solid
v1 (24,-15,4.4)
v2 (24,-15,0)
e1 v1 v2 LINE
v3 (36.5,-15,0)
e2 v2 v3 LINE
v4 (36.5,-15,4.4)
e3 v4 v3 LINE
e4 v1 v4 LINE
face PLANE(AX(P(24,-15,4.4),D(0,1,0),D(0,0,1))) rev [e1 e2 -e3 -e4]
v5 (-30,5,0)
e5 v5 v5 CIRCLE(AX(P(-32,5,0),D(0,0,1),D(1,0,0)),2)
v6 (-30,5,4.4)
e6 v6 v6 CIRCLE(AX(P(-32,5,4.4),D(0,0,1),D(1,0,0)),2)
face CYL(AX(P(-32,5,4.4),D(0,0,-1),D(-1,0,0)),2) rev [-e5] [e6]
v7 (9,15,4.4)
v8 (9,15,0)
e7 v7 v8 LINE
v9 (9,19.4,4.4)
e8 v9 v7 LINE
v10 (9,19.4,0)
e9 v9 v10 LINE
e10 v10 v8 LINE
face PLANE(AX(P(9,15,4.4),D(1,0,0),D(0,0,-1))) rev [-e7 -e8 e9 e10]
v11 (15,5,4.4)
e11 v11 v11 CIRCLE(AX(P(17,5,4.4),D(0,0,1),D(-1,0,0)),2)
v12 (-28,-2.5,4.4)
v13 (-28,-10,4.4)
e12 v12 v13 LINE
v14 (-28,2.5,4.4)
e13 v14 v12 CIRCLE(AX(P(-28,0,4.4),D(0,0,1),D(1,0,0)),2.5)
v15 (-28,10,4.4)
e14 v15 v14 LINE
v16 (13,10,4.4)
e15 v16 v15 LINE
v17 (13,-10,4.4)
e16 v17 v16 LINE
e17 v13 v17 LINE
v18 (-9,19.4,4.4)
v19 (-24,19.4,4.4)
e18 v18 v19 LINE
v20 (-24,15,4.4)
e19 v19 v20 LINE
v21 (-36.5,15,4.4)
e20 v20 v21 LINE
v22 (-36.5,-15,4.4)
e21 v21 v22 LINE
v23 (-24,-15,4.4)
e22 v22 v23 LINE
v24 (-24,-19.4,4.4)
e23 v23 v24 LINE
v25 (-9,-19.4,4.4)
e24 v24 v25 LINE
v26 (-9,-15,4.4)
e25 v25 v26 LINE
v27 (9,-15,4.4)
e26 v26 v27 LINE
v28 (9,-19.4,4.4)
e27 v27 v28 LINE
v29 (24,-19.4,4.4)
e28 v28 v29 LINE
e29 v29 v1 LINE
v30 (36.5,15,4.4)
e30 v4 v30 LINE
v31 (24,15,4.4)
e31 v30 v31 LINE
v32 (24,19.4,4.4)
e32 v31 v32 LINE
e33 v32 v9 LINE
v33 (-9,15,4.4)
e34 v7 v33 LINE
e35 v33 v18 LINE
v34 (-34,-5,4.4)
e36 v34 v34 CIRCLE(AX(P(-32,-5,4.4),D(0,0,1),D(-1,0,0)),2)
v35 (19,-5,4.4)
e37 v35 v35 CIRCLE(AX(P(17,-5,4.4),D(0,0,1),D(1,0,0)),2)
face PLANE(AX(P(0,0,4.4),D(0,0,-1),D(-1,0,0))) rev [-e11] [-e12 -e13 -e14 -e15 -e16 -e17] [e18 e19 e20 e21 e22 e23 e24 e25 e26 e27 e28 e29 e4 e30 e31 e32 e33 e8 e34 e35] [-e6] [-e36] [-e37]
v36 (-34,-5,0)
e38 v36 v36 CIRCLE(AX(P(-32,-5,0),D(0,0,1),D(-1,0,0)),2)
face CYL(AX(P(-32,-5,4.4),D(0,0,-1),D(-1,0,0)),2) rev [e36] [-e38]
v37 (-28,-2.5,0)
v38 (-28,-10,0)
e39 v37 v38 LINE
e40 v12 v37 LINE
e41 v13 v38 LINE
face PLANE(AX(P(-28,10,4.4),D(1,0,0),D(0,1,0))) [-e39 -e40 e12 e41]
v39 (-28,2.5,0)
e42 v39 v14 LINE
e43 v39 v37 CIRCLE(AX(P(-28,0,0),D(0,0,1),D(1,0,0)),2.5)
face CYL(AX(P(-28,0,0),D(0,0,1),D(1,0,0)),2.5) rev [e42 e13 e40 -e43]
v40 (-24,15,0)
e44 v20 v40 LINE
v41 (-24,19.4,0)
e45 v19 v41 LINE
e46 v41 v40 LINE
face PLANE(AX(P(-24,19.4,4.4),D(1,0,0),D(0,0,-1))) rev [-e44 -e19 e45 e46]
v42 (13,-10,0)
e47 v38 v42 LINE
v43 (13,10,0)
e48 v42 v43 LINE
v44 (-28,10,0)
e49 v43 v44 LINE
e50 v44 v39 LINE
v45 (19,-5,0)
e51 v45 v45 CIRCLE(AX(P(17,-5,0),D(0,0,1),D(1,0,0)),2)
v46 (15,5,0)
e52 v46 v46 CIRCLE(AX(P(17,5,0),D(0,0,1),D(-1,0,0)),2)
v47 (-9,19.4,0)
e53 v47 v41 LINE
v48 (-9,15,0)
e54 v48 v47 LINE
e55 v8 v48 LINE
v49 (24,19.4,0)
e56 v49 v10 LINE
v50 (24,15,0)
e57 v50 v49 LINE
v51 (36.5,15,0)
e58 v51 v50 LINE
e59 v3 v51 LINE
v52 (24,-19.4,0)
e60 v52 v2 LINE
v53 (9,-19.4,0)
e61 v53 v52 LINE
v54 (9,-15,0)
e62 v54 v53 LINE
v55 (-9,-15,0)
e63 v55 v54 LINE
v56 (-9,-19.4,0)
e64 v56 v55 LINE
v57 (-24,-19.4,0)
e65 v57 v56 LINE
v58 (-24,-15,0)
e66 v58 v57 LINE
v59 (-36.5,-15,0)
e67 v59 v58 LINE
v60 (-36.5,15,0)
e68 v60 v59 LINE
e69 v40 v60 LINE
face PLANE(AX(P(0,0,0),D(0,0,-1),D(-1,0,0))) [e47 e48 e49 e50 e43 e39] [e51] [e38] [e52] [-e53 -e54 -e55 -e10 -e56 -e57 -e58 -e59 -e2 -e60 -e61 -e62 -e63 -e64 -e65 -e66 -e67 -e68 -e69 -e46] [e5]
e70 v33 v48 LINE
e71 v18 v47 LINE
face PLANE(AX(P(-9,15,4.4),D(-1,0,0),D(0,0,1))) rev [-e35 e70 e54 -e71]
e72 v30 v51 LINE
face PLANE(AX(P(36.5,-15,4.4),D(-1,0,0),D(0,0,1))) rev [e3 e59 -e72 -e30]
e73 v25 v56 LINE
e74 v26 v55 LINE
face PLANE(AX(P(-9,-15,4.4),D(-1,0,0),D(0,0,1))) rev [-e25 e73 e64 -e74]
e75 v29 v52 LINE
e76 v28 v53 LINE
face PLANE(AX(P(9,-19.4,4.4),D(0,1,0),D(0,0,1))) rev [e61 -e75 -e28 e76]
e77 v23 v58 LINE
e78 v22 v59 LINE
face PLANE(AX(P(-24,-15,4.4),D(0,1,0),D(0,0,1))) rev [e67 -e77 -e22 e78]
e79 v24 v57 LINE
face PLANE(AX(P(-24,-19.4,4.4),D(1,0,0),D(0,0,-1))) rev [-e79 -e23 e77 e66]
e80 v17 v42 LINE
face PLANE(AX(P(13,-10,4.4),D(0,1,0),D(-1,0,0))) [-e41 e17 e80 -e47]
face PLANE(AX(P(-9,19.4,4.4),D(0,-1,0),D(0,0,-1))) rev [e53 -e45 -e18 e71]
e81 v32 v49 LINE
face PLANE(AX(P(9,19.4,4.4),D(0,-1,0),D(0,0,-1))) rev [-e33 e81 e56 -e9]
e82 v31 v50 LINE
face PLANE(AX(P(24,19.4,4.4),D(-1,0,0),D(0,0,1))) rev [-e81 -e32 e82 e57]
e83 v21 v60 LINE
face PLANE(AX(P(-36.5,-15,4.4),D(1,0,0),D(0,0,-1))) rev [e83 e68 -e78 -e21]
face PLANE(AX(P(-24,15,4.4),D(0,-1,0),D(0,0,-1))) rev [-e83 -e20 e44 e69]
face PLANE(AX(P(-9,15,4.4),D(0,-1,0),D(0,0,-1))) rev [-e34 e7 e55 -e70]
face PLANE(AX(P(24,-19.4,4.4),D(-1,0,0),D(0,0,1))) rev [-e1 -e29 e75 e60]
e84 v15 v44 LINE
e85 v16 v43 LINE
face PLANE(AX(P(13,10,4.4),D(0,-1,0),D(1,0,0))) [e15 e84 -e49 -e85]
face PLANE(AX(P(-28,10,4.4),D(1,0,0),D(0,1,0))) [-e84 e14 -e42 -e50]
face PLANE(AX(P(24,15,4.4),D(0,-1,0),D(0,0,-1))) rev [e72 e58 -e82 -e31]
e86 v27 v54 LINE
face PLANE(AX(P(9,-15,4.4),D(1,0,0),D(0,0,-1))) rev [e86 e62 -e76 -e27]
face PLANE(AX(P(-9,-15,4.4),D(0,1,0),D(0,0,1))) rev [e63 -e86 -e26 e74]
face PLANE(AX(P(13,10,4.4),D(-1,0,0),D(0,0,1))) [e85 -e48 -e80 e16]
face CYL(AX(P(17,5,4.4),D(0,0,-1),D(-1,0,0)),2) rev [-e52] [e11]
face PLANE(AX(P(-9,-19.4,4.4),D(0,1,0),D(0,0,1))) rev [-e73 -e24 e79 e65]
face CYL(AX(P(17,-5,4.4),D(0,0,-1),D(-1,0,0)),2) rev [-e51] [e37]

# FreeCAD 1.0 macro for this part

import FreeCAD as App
import Part
import Sketcher
from FreeCAD import Vector

doc = App.newDocument("Part")
body = doc.addObject("PartDesign::Body", "Body")

# Sketch on XY plane
sketch1 = body.newObject("Sketcher::SketchObject", "Sketch")
sketch1.AttachmentSupport = (doc.getObject("XY_Plane"), [""])
sketch1.MapMode = "FlatFace"
sketch1.addGeometry(Part.LineSegment(Vector(9, 19.4, 0), Vector(9, 15, 0)), False)
sketch1.addGeometry(Part.LineSegment(Vector(9, 15, 0), Vector(-9, 15, 0)), False)
sketch1.addGeometry(Part.LineSegment(Vector(-9, 15, 0), Vector(-9, 19.4, 0)), False)
sketch1.addGeometry(Part.LineSegment(Vector(-9, 19.4, 0), Vector(-24, 19.4, 0)), False)
sketch1.addGeometry(Part.LineSegment(Vector(-24, 19.4, 0), Vector(-24, 15, 0)), False)
sketch1.addGeometry(Part.LineSegment(Vector(-24, 15, 0), Vector(-36.5, 15, 0)), False)
sketch1.addGeometry(Part.LineSegment(Vector(-36.5, 15, 0), Vector(-36.5, -15, 0)), False)
sketch1.addGeometry(Part.LineSegment(Vector(-36.5, -15, 0), Vector(-24, -15, 0)), False)
sketch1.addGeometry(Part.LineSegment(Vector(-24, -15, 0), Vector(-24, -19.4, 0)), False)
sketch1.addGeometry(Part.LineSegment(Vector(-24, -19.4, 0), Vector(-9, -19.4, 0)), False)
sketch1.addGeometry(Part.LineSegment(Vector(-9, -19.4, 0), Vector(-9, -15, 0)), False)
sketch1.addGeometry(Part.LineSegment(Vector(-9, -15, 0), Vector(9, -15, 0)), False)
sketch1.addGeometry(Part.LineSegment(Vector(9, -15, 0), Vector(9, -19.4, 0)), False)
sketch1.addGeometry(Part.LineSegment(Vector(9, -19.4, 0), Vector(24, -19.4, 0)), False)
sketch1.addGeometry(Part.LineSegment(Vector(24, -19.4, 0), Vector(24, -15, 0)), False)
sketch1.addGeometry(Part.LineSegment(Vector(24, -15, 0), Vector(36.5, -15, 0)), False)
sketch1.addGeometry(Part.LineSegment(Vector(36.5, -15, 0), Vector(36.5, 15, 0)), False)
sketch1.addGeometry(Part.LineSegment(Vector(36.5, 15, 0), Vector(24, 15, 0)), False)
sketch1.addGeometry(Part.LineSegment(Vector(24, 15, 0), Vector(24, 19.4, 0)), False)
sketch1.addGeometry(Part.LineSegment(Vector(24, 19.4, 0), Vector(9, 19.4, 0)), False)
sketch1.addGeometry(Part.Circle(Vector(17, -5, 0), Vector(0, 0, 1), 2), False)
sketch1.addGeometry(Part.Circle(Vector(-32, -5, 0), Vector(0, 0, 1), 2), False)
sketch1.addGeometry(Part.Circle(Vector(17, 5, 0), Vector(0, 0, 1), 2), False)
sketch1.addGeometry(Part.LineSegment(Vector(-28, -10, 0), Vector(-28, 10, 0)), False)
sketch1.addGeometry(Part.LineSegment(Vector(-28, 10, 0), Vector(13, 10, 0)), False)
sketch1.addGeometry(Part.LineSegment(Vector(13, 10, 0), Vector(13, -10, 0)), False)
sketch1.addGeometry(Part.LineSegment(Vector(13, -10, 0), Vector(-28, -10, 0)), False)
sketch1.addGeometry(Part.Circle(Vector(-32, 5, 0), Vector(0, 0, 1), 2), False)
sketch1.addConstraint(Sketcher.Constraint("Coincident", 0, 2, 1, 1))
sketch1.addConstraint(Sketcher.Constraint("Coincident", 1, 2, 2, 1))
sketch1.addConstraint(Sketcher.Constraint("Coincident", 2, 2, 3, 1))
sketch1.addConstraint(Sketcher.Constraint("Coincident", 3, 2, 4, 1))
sketch1.addConstraint(Sketcher.Constraint("Coincident", 4, 2, 5, 1))
sketch1.addConstraint(Sketcher.Constraint("Coincident", 5, 2, 6, 1))
sketch1.addConstraint(Sketcher.Constraint("Coincident", 6, 2, 7, 1))
sketch1.addConstraint(Sketcher.Constraint("Coincident", 7, 2, 8, 1))
sketch1.addConstraint(Sketcher.Constraint("Coincident", 8, 2, 9, 1))
sketch1.addConstraint(Sketcher.Constraint("Coincident", 9, 2, 10, 1))
sketch1.addConstraint(Sketcher.Constraint("Coincident", 10, 2, 11, 1))
sketch1.addConstraint(Sketcher.Constraint("Coincident", 11, 2, 12, 1))
sketch1.addConstraint(Sketcher.Constraint("Coincident", 12, 2, 13, 1))
sketch1.addConstraint(Sketcher.Constraint("Coincident", 13, 2, 14, 1))
sketch1.addConstraint(Sketcher.Constraint("Coincident", 14, 2, 15, 1))
sketch1.addConstraint(Sketcher.Constraint("Coincident", 15, 2, 16, 1))
sketch1.addConstraint(Sketcher.Constraint("Coincident", 16, 2, 17, 1))
sketch1.addConstraint(Sketcher.Constraint("Coincident", 17, 2, 18, 1))
sketch1.addConstraint(Sketcher.Constraint("Coincident", 18, 2, 19, 1))
sketch1.addConstraint(Sketcher.Constraint("Coincident", 19, 2, 0, 1))
sketch1.addConstraint(Sketcher.Constraint("Coincident", 23, 2, 24, 1))
sketch1.addConstraint(Sketcher.Constraint("Coincident", 24, 2, 25, 1))
sketch1.addConstraint(Sketcher.Constraint("Coincident", 25, 2, 26, 1))
sketch1.addConstraint(Sketcher.Constraint("Coincident", 26, 2, 23, 1))
sketch1.addConstraint(Sketcher.Constraint("Vertical", 0))
sketch1.addConstraint(Sketcher.Constraint("Horizontal", 1))
sketch1.addConstraint(Sketcher.Constraint("Vertical", 2))
sketch1.addConstraint(Sketcher.Constraint("Horizontal", 3))
sketch1.addConstraint(Sketcher.Constraint("Vertical", 4))
sketch1.addConstraint(Sketcher.Constraint("Horizontal", 5))
sketch1.addConstraint(Sketcher.Constraint("Vertical", 6))
sketch1.addConstraint(Sketcher.Constraint("Horizontal", 7))
sketch1.addConstraint(Sketcher.Constraint("Vertical", 8))
sketch1.addConstraint(Sketcher.Constraint("Horizontal", 9))
sketch1.addConstraint(Sketcher.Constraint("Vertical", 10))
sketch1.addConstraint(Sketcher.Constraint("Horizontal", 11))
sketch1.addConstraint(Sketcher.Constraint("Vertical", 12))
sketch1.addConstraint(Sketcher.Constraint("Horizontal", 13))
sketch1.addConstraint(Sketcher.Constraint("Vertical", 14))
sketch1.addConstraint(Sketcher.Constraint("Horizontal", 15))
sketch1.addConstraint(Sketcher.Constraint("Vertical", 16))
sketch1.addConstraint(Sketcher.Constraint("Horizontal", 17))
sketch1.addConstraint(Sketcher.Constraint("Vertical", 18))
sketch1.addConstraint(Sketcher.Constraint("Horizontal", 19))
sketch1.addConstraint(Sketcher.Constraint("Vertical", 23))
sketch1.addConstraint(Sketcher.Constraint("Horizontal", 24))
sketch1.addConstraint(Sketcher.Constraint("Vertical", 25))
sketch1.addConstraint(Sketcher.Constraint("Horizontal", 26))
sketch1.addConstraint(Sketcher.Constraint("Equal", 20, 21))
sketch1.addConstraint(Sketcher.Constraint("Equal", 21, 22))
sketch1.addConstraint(Sketcher.Constraint("Equal", 22, 27))
sketch1.addConstraint(Sketcher.Constraint("Symmetric", 0, 2, 10, 2, -1, 1))
sketch1.addConstraint(Sketcher.Constraint("Symmetric", 2, 2, 12, 2, -1, 1))
sketch1.addConstraint(Sketcher.Constraint("Symmetric", 4, 2, 14, 2, -1, 1))
sketch1.addConstraint(Sketcher.Constraint("Symmetric", 6, 2, 16, 2, -1, 1))
sketch1.addConstraint(Sketcher.Constraint("Symmetric", 8, 2, 18, 2, -1, 1))
sketch1.addConstraint(Sketcher.Constraint("Symmetric", 9, 2, 12, 2, -2))
sketch1.addConstraint(Sketcher.Constraint("Symmetric", 7, 2, 14, 2, -2))
sketch1.addConstraint(Sketcher.Constraint("Symmetric", 20, 3, 22, 3, -1))
sketch1.addConstraint(Sketcher.Constraint("Symmetric", 21, 3, 27, 3, -1))
sketch1.addConstraint(Sketcher.Constraint("Horizontal", 20, 3, 21, 3))
sketch1.addConstraint(Sketcher.Constraint("Horizontal", 1, 2, 4, 2))
sketch1.addConstraint(Sketcher.Constraint("Diameter", 20, 4.0))
sketch1.addConstraint(Sketcher.Constraint("DistanceX", 1, 2, 1, 1, 18.0))
sketch1.addConstraint(Sketcher.Constraint("DistanceX", 3, 2, 3, 1, 15.0))
sketch1.addConstraint(Sketcher.Constraint("DistanceX", 24, 1, 24, 2, 41.0))
sketch1.addConstraint(Sketcher.Constraint("DistanceY", 6, 2, 6, 1, 30.0))
sketch1.addConstraint(Sketcher.Constraint("DistanceY", 23, 1, 23, 2, 20.0))
sketch1.addConstraint(Sketcher.Constraint("DistanceX", 5, 2, 5, 1, 12.5))
sketch1.addConstraint(Sketcher.Constraint("DistanceY", 0, 2, 0, 1, 4.4))
sketch1.addConstraint(Sketcher.Constraint("DistanceX", -1, 1, 20, 3, 17.0))
sketch1.addConstraint(Sketcher.Constraint("DistanceY", 20, 3, -1, 1, 5.0))
sketch1.addConstraint(Sketcher.Constraint("DistanceX", 21, 3, -1, 1, 32.0))
sketch1.addConstraint(Sketcher.Constraint("DistanceX", 23, 2, -1, 1, 28.0))
sketch1.addConstraint(Sketcher.Constraint("DistanceY", -1, 1, 23, 2, 10.0))
pad1 = body.newObject("PartDesign::Pad", "Pad")
pad1.Profile = sketch1
pad1.Length = 4.4

# Sketch on XY plane
sketch2 = body.newObject("Sketcher::SketchObject", "Sketch001")
sketch2.AttachmentSupport = (doc.getObject("XY_Plane"), [""])
sketch2.MapMode = "FlatFace"
sketch2.AttachmentOffset = App.Placement(Vector(0, 0, 4.4), App.Rotation())
sketch2.addGeometry(Part.Circle(Vector(-28, 0, 0), Vector(0, 0, 1), 2.5), False)
sketch2.addConstraint(Sketcher.Constraint("PointOnObject", 0, 3, -1))
sketch2.addConstraint(Sketcher.Constraint("Diameter", 0, 5.0))
sketch2.addConstraint(Sketcher.Constraint("DistanceX", 0, 3, -1, 1, 28.0))
pocket1 = body.newObject("PartDesign::Pocket", "Pocket")
pocket1.Profile = sketch2
pocket1.Length = 4.4

doc.recompute()
